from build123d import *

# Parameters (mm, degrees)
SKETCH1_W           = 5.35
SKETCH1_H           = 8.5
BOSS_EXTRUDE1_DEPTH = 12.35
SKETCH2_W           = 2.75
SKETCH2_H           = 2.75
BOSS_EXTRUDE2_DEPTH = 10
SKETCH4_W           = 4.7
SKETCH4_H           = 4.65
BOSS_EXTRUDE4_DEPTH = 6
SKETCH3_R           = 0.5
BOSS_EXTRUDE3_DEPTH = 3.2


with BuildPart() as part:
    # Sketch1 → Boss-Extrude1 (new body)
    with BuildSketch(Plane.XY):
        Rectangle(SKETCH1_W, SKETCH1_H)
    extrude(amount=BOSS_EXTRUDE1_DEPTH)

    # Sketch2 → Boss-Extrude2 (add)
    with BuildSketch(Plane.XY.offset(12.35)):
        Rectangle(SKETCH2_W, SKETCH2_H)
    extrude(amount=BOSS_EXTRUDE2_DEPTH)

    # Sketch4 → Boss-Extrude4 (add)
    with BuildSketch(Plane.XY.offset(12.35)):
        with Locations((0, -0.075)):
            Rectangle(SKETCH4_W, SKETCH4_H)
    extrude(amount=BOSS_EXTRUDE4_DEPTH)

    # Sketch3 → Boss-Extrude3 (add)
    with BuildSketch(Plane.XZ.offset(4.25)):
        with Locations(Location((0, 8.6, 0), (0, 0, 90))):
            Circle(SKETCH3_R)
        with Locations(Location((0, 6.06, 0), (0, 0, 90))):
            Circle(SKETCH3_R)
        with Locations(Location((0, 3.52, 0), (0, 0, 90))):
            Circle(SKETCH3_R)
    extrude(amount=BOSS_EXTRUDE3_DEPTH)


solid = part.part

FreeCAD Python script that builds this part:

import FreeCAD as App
import Part
import Sketcher

doc = App.newDocument("Part")
body = doc.addObject("PartDesign::Body", "Body")

sketch1 = body.newObject("Sketcher::SketchObject", "Sketch")
sketch1.AttachmentSupport = (doc.getObject("XY_Plane"), [""])
sketch1.MapMode = "FlatFace"
sketch1.addGeometry(Part.LineSegment(App.Vector(-3, 4, 0), App.Vector(-3, -4, 0)), False)
sketch1.addGeometry(Part.LineSegment(App.Vector(-3, -4, 0), App.Vector(3, -4, 0)), False)
sketch1.addGeometry(Part.LineSegment(App.Vector(3, -4, 0), App.Vector(3, 4, 0)), False)
sketch1.addGeometry(Part.LineSegment(App.Vector(3, 4, 0), App.Vector(-3, 4, 0)), False)
sketch1.addConstraint(Sketcher.Constraint("Coincident", 0, 2, 1, 1))
sketch1.addConstraint(Sketcher.Constraint("Coincident", 1, 2, 2, 1))
sketch1.addConstraint(Sketcher.Constraint("Coincident", 2, 2, 3, 1))
sketch1.addConstraint(Sketcher.Constraint("Coincident", 3, 2, 0, 1))
sketch1.addConstraint(Sketcher.Constraint("Vertical", 0))
sketch1.addConstraint(Sketcher.Constraint("Horizontal", 1))
sketch1.addConstraint(Sketcher.Constraint("Vertical", 2))
sketch1.addConstraint(Sketcher.Constraint("Horizontal", 3))
sketch1.addConstraint(Sketcher.Constraint("Symmetric", 0, 2, 2, 2, -1, 1))
sketch1.addConstraint(Sketcher.Constraint("DistanceY", 0, 2, 0, 1, 8.5))
sketch1.addConstraint(Sketcher.Constraint("DistanceX", 1, 1, 1, 2, 5.35))
pad1 = body.newObject("PartDesign::Pad", "Pad")
pad1.Profile = sketch1
pad1.Length = 12.35

sketch2 = body.newObject("Sketcher::SketchObject", "Sketch001")
sketch2.AttachmentSupport = (doc.getObject("XY_Plane"), [""])
sketch2.MapMode = "FlatFace"
sketch2.AttachmentOffset = App.Placement(App.Vector(0, 0, 12.35), App.Rotation())
sketch2.addGeometry(Part.LineSegment(App.Vector(-1.4, 1.4, 0), App.Vector(-1.4, -1.4, 0)), False)
sketch2.addGeometry(Part.LineSegment(App.Vector(-1.4, -1.4, 0), App.Vector(1.4, -1.4, 0)), False)
sketch2.addGeometry(Part.LineSegment(App.Vector(1.4, -1.4, 0), App.Vector(1.4, 1.4, 0)), False)
sketch2.addGeometry(Part.LineSegment(App.Vector(1.4, 1.4, 0), App.Vector(-1.4, 1.4, 0)), False)
sketch2.addConstraint(Sketcher.Constraint("Coincident", 0, 2, 1, 1))
sketch2.addConstraint(Sketcher.Constraint("Coincident", 1, 2, 2, 1))
sketch2.addConstraint(Sketcher.Constraint("Coincident", 2, 2, 3, 1))
sketch2.addConstraint(Sketcher.Constraint("Coincident", 3, 2, 0, 1))
sketch2.addConstraint(Sketcher.Constraint("Vertical", 0))
sketch2.addConstraint(Sketcher.Constraint("Horizontal", 1))
sketch2.addConstraint(Sketcher.Constraint("Vertical", 2))
sketch2.addConstraint(Sketcher.Constraint("Horizontal", 3))
sketch2.addConstraint(Sketcher.Constraint("Symmetric", 0, 2, 2, 2, -1, 1))
sketch2.addConstraint(Sketcher.Constraint("Equal", 3, 0))
sketch2.addConstraint(Sketcher.Constraint("DistanceX", 1, 1, 1, 2, 2.75))
pad2 = body.newObject("PartDesign::Pad", "Pad001")
pad2.Profile = sketch2
pad2.Length = 10

sketch3 = body.newObject("Sketcher::SketchObject", "Sketch002")
sketch3.AttachmentSupport = (doc.getObject("XY_Plane"), [""])
sketch3.MapMode = "FlatFace"
sketch3.AttachmentOffset = App.Placement(App.Vector(0, 0, 12.35), App.Rotation())
sketch3.addGeometry(Part.LineSegment(App.Vector(-2.4, 2.2, 0), App.Vector(-2.4, -2.4, 0)), False)
sketch3.addGeometry(Part.LineSegment(App.Vector(-2.4, -2.4, 0), App.Vector(2.4, -2.4, 0)), False)
sketch3.addGeometry(Part.LineSegment(App.Vector(2.4, -2.4, 0), App.Vector(2.4, 2.2, 0)), False)
sketch3.addGeometry(Part.LineSegment(App.Vector(2.4, 2.2, 0), App.Vector(-2.4, 2.2, 0)), False)
sketch3.addConstraint(Sketcher.Constraint("Coincident", 0, 2, 1, 1))
sketch3.addConstraint(Sketcher.Constraint("Coincident", 1, 2, 2, 1))
sketch3.addConstraint(Sketcher.Constraint("Coincident", 2, 2, 3, 1))
sketch3.addConstraint(Sketcher.Constraint("Coincident", 3, 2, 0, 1))
sketch3.addConstraint(Sketcher.Constraint("Vertical", 0))
sketch3.addConstraint(Sketcher.Constraint("Horizontal", 1))
sketch3.addConstraint(Sketcher.Constraint("Vertical", 2))
sketch3.addConstraint(Sketcher.Constraint("Horizontal", 3))
sketch3.addConstraint(Sketcher.Constraint("DistanceX", 1, 1, 1, 2, 4.7))
sketch3.addConstraint(Sketcher.Constraint("DistanceY", 0, 2, 0, 1, 4.65))
sketch3.addConstraint(Sketcher.Constraint("DistanceY", 0, 2, -1, 1, 2.4))
sketch3.addConstraint(Sketcher.Constraint("DistanceX", 0, 2, -1, 1, 2.35))
pad3 = body.newObject("PartDesign::Pad", "Pad002")
pad3.Profile = sketch3
pad3.Length = 6

sketch4 = body.newObject("Sketcher::SketchObject", "Sketch003")
sketch4.AttachmentSupport = (doc.getObject("XZ_Plane"), [""])
sketch4.MapMode = "FlatFace"
sketch4.AttachmentOffset = App.Placement(App.Vector(0, 0, 4.25), App.Rotation())
sketch4.addGeometry(Part.Circle(App.Vector(0, 8.6, 0), App.Vector(0, 0, 1), 0.5), False)
sketch4.addGeometry(Part.Circle(App.Vector(0, 6.1, 0), App.Vector(0, 0, 1), 0.5), False)
sketch4.addGeometry(Part.Circle(App.Vector(0, 3.5, 0), App.Vector(0, 0, 1), 0.5), False)
sketch4.addConstraint(Sketcher.Constraint("Equal", 0, 1))
sketch4.addConstraint(Sketcher.Constraint("Equal", 1, 2))
sketch4.addConstraint(Sketcher.Constraint("PointOnObject", 0, 3, -2))
sketch4.addConstraint(Sketcher.Constraint("PointOnObject", 1, 3, -2))
sketch4.addConstraint(Sketcher.Constraint("PointOnObject", 2, 3, -2))
sketch4.addConstraint(Sketcher.Constraint("Diameter", 0, 1.0))
sketch4.addConstraint(Sketcher.Constraint("DistanceY", -1, 1, 0, 3, 8.6))
sketch4.addConstraint(Sketcher.Constraint("DistanceY", -1, 1, 1, 3, 6.06))
sketch4.addConstraint(Sketcher.Constraint("DistanceY", -1, 1, 2, 3, 3.52))
pad4 = body.newObject("PartDesign::Pad", "Pad003")
pad4.Profile = sketch4
pad4.Length = 3.2

doc.recompute()
